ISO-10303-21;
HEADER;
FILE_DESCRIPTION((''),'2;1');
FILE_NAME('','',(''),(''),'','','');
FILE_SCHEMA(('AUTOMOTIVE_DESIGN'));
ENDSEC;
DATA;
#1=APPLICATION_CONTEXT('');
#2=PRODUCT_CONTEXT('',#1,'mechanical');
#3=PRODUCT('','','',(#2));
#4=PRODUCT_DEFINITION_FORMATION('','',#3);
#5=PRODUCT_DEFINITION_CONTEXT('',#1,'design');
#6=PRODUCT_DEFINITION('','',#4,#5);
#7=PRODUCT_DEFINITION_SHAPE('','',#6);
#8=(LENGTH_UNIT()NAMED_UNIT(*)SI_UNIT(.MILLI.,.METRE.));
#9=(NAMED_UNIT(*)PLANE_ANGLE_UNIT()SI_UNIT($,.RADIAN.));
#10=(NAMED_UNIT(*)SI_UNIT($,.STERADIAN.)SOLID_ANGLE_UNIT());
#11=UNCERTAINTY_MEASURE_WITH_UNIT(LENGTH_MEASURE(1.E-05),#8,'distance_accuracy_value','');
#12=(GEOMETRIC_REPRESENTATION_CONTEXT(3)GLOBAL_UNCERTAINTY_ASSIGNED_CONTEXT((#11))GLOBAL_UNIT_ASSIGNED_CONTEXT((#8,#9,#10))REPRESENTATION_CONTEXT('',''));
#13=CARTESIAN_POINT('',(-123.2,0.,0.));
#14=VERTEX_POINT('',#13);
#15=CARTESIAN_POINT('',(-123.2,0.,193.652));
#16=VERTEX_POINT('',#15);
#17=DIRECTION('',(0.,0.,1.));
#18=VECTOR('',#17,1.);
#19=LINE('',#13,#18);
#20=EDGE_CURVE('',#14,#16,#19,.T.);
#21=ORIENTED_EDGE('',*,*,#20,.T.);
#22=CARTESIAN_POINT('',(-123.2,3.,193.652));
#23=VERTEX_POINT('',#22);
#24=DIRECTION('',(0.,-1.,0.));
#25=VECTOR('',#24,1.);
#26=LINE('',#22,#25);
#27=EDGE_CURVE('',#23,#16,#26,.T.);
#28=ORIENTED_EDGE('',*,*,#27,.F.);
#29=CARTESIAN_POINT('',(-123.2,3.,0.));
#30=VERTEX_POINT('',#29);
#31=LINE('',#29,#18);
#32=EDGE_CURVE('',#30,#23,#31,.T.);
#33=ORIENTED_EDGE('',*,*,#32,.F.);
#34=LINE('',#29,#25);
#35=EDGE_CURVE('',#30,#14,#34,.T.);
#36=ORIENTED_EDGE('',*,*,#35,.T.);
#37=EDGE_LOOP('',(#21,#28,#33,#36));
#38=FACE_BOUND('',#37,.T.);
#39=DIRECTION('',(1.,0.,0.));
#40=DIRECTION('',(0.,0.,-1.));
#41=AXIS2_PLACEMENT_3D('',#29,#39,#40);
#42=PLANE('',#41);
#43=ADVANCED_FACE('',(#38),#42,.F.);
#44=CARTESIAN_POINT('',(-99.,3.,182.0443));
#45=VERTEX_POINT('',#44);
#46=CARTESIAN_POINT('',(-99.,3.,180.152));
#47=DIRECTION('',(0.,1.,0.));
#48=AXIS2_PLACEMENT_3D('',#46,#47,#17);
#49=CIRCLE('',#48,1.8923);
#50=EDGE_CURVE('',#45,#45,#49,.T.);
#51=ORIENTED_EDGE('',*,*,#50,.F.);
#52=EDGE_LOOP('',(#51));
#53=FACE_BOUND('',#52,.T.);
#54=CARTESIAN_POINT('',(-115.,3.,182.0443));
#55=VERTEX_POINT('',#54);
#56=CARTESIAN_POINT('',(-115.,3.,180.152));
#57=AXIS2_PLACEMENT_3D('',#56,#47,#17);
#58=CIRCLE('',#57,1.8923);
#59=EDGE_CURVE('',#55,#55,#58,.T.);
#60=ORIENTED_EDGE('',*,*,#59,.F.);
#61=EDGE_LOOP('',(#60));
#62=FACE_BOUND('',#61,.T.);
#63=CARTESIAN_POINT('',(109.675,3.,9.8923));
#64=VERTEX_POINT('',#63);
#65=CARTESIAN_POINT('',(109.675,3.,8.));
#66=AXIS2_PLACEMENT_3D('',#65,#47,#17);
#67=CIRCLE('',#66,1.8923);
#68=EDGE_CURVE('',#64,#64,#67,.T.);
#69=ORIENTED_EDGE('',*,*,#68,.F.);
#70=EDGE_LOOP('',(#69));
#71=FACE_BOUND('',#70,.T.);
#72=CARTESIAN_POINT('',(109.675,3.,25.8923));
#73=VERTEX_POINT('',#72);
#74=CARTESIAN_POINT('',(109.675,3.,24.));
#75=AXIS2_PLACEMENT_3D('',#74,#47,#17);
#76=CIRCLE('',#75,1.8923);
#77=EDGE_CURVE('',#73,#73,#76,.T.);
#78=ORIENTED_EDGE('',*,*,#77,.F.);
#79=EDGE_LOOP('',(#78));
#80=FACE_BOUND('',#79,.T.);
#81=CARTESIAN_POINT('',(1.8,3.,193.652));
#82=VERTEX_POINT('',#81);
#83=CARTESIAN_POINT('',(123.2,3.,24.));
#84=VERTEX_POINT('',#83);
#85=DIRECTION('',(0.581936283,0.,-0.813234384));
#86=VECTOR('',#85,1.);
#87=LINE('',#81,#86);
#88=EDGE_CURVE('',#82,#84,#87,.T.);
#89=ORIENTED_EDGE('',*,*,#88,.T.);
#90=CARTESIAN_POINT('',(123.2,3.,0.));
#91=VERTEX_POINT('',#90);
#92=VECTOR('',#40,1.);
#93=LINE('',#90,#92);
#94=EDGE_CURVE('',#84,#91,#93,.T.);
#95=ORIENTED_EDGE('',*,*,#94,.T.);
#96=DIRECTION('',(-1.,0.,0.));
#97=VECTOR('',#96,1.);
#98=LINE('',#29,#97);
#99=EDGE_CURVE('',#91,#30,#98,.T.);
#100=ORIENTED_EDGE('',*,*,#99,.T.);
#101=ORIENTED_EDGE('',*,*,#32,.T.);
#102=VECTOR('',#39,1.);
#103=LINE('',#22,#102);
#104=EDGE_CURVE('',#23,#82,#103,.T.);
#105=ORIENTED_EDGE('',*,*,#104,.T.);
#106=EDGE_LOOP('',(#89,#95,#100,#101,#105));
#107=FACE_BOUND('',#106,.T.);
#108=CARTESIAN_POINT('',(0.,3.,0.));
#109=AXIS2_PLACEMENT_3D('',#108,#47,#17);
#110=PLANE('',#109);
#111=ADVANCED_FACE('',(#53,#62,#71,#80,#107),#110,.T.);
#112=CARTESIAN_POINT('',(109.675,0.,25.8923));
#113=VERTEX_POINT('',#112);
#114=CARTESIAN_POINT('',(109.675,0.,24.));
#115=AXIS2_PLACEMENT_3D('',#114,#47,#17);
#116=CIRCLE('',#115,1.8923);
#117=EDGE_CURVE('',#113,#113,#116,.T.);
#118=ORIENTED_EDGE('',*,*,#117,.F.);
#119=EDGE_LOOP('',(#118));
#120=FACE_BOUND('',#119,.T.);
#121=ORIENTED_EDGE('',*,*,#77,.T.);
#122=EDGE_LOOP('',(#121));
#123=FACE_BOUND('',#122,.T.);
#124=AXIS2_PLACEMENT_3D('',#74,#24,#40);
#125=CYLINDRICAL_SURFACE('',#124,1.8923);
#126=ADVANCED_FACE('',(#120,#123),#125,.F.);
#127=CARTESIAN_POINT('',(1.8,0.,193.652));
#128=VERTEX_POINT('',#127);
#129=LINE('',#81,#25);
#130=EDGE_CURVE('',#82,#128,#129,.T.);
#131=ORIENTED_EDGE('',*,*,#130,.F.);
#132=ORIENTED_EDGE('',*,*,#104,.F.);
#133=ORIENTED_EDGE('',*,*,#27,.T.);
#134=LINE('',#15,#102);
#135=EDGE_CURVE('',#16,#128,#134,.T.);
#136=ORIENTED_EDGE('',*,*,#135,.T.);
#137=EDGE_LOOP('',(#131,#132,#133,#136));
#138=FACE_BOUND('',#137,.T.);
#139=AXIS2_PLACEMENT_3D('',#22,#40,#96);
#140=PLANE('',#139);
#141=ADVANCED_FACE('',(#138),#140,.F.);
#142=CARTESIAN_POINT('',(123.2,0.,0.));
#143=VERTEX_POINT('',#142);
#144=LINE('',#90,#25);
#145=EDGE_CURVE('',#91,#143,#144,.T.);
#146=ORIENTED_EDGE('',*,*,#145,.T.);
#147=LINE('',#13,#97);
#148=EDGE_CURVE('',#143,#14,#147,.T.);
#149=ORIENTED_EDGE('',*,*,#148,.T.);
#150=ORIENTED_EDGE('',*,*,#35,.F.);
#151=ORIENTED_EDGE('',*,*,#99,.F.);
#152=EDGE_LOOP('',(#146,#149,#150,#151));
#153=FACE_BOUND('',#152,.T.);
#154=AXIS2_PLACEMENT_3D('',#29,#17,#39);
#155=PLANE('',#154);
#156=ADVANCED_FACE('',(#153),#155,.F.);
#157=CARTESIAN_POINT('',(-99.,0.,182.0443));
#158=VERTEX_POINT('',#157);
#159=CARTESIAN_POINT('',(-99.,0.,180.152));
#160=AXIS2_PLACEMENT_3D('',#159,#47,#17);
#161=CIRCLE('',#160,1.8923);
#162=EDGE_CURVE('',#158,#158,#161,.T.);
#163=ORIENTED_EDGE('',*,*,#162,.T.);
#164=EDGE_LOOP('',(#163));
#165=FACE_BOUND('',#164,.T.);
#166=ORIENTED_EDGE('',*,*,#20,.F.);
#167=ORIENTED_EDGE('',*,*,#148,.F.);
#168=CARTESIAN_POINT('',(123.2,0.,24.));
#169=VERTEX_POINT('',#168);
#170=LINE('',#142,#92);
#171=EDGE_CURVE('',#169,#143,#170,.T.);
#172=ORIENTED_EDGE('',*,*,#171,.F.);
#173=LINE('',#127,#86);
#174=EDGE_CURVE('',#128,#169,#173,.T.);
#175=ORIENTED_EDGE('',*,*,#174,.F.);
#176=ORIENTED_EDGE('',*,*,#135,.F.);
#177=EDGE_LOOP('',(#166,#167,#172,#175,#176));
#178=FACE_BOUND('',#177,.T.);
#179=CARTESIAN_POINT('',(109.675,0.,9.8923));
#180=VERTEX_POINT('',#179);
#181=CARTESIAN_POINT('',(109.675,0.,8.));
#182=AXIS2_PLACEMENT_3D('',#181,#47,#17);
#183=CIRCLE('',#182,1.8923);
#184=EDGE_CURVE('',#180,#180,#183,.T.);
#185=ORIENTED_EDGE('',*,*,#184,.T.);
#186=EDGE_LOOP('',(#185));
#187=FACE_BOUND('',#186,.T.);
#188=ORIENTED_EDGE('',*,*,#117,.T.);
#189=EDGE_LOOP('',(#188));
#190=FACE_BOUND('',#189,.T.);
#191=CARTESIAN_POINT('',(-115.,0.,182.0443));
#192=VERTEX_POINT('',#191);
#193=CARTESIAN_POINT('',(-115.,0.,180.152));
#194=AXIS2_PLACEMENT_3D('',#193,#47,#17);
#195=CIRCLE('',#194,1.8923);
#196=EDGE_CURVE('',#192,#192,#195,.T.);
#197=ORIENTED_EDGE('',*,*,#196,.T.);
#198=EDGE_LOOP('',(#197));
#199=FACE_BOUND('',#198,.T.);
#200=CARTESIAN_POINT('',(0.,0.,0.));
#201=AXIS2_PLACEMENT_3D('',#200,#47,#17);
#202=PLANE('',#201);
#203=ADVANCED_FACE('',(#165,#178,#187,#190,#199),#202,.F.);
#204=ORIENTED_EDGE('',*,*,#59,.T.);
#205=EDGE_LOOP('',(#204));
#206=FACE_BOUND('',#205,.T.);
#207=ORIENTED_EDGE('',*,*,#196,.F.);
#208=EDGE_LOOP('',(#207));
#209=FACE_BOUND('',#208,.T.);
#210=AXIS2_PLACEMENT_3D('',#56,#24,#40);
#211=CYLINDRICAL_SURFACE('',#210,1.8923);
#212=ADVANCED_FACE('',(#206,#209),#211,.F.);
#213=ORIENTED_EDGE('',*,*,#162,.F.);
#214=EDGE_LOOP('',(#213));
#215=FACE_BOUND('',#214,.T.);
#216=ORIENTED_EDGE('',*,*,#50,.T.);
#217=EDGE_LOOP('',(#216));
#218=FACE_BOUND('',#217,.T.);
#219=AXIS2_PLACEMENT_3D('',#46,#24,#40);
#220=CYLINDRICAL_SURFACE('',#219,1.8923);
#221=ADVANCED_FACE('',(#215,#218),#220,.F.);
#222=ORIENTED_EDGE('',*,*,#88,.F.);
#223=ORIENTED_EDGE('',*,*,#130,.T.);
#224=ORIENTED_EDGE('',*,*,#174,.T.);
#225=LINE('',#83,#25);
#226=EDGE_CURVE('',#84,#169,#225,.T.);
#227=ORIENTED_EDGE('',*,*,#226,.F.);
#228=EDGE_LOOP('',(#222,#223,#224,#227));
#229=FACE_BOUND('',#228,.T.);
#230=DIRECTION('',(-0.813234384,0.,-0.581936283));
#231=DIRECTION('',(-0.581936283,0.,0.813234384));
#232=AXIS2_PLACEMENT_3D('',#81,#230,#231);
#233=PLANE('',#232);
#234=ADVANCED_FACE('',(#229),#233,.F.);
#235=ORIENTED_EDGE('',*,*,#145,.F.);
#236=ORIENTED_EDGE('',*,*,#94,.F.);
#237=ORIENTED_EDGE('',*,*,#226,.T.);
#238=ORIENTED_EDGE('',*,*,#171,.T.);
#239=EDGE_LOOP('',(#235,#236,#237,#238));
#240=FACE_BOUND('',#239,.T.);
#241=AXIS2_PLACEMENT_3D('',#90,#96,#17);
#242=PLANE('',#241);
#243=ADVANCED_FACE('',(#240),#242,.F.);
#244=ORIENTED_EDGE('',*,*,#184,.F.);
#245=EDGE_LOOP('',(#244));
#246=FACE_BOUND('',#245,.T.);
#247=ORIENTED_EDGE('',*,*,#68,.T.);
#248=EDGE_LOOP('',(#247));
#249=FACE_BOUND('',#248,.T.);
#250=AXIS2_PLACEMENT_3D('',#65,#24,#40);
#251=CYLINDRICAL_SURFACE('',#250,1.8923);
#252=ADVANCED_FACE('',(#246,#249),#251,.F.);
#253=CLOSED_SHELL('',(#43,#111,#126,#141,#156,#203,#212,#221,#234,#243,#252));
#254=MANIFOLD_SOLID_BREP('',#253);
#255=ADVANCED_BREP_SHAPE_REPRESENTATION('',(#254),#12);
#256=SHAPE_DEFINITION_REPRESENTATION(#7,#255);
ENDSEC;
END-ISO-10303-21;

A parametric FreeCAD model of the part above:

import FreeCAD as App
import Part
import Sketcher


def add_polygon(sketch, points):
    """Adds a closed chain of lines whose ends are joined by coincident constraints."""
    first, n = sketch.GeometryCount, len(points)
    for a, b in zip(points, points[1:] + points[:1]):
        sketch.addGeometry(Part.LineSegment(App.Vector(*a, 0), App.Vector(*b, 0)), False)
    for i in range(n):
        sketch.addConstraint(Sketcher.Constraint("Coincident", first + i, 2, first + (i + 1) % n, 1))

doc = App.newDocument("Part")
body = doc.addObject("PartDesign::Body", "Body")

# Sketch on XZ plane
sketch1 = doc.addObject("Sketcher::SketchObject", "Sketch")
body.addObject(sketch1)
sketch1.AttachmentSupport = (doc.XZ_Plane, [""])
sketch1.MapMode = "FlatFace"
add_polygon(sketch1, [(123.2, 0), (-123.2, 0), (-123.2, 193.7), (1.8, 193.7), (123.2, 24)])  # lines 0-4
sketch1.addGeometry(Part.Circle(App.Vector(-99, 180.2, 0), App.Vector(0, 0, 1), 1.9), False)  # 5
sketch1.addGeometry(Part.Circle(App.Vector(-115, 180.2, 0), App.Vector(0, 0, 1), 1.9), False)  # 6
sketch1.addGeometry(Part.Circle(App.Vector(109.7, 24, 0), App.Vector(0, 0, 1), 1.9), False)  # 7
sketch1.addGeometry(Part.Circle(App.Vector(109.7, 8, 0), App.Vector(0, 0, 1), 1.9), False)  # 8
sketch1.addConstraint(Sketcher.Constraint("Horizontal", 0))
sketch1.addConstraint(Sketcher.Constraint("Vertical", 1))
sketch1.addConstraint(Sketcher.Constraint("Horizontal", 2))
sketch1.addConstraint(Sketcher.Constraint("Vertical", 4))
sketch1.addConstraint(Sketcher.Constraint("Equal", 5, 6))
sketch1.addConstraint(Sketcher.Constraint("Equal", 6, 7))
sketch1.addConstraint(Sketcher.Constraint("Equal", 7, 8))
sketch1.addConstraint(Sketcher.Constraint("Symmetric", 0, 2, 4, 2, -1, 1))
sketch1.addConstraint(Sketcher.Constraint("Horizontal", 5, 3, 6, 3))
sketch1.addConstraint(Sketcher.Constraint("Horizontal", 7, 3, 3, 2))
sketch1.addConstraint(Sketcher.Constraint("Vertical", 7, 3, 8, 3))
sketch1.addConstraint(Sketcher.Constraint("DistanceX", 2, 1, 2, 2, 125.0))
sketch1.addConstraint(Sketcher.Constraint("DistanceY", 4, 2, 4, 1, 24.0))
sketch1.addConstraint(Sketcher.Constraint("DistanceX", 0, 2, 0, 1, 246.4))
sketch1.addConstraint(Sketcher.Constraint("DistanceX", 5, 3, -1, 1, 99.0))
sketch1.addConstraint(Sketcher.Constraint("DistanceX", 6, 3, -1, 1, 115.0))
sketch1.addConstraint(Sketcher.Constraint("DistanceY", -1, 1, 8, 3, 8.0))
sketch1.addConstraint(Sketcher.Constraint("Diameter", 5, 3.7846))
sketch1.addConstraint(Sketcher.Constraint("DistanceY", 6, 3, 1, 2, 13.5))
sketch1.addConstraint(Sketcher.Constraint("DistanceY", 1, 1, 1, 2, 193.652))
sketch1.addConstraint(Sketcher.Constraint("DistanceX", -1, 1, 7, 3, 109.675))
pad1 = doc.addObject("PartDesign::Pad", "Pad")
body.addObject(pad1)
pad1.Profile = sketch1
pad1.Length = 3
pad1.Reversed = True

doc.recompute()
